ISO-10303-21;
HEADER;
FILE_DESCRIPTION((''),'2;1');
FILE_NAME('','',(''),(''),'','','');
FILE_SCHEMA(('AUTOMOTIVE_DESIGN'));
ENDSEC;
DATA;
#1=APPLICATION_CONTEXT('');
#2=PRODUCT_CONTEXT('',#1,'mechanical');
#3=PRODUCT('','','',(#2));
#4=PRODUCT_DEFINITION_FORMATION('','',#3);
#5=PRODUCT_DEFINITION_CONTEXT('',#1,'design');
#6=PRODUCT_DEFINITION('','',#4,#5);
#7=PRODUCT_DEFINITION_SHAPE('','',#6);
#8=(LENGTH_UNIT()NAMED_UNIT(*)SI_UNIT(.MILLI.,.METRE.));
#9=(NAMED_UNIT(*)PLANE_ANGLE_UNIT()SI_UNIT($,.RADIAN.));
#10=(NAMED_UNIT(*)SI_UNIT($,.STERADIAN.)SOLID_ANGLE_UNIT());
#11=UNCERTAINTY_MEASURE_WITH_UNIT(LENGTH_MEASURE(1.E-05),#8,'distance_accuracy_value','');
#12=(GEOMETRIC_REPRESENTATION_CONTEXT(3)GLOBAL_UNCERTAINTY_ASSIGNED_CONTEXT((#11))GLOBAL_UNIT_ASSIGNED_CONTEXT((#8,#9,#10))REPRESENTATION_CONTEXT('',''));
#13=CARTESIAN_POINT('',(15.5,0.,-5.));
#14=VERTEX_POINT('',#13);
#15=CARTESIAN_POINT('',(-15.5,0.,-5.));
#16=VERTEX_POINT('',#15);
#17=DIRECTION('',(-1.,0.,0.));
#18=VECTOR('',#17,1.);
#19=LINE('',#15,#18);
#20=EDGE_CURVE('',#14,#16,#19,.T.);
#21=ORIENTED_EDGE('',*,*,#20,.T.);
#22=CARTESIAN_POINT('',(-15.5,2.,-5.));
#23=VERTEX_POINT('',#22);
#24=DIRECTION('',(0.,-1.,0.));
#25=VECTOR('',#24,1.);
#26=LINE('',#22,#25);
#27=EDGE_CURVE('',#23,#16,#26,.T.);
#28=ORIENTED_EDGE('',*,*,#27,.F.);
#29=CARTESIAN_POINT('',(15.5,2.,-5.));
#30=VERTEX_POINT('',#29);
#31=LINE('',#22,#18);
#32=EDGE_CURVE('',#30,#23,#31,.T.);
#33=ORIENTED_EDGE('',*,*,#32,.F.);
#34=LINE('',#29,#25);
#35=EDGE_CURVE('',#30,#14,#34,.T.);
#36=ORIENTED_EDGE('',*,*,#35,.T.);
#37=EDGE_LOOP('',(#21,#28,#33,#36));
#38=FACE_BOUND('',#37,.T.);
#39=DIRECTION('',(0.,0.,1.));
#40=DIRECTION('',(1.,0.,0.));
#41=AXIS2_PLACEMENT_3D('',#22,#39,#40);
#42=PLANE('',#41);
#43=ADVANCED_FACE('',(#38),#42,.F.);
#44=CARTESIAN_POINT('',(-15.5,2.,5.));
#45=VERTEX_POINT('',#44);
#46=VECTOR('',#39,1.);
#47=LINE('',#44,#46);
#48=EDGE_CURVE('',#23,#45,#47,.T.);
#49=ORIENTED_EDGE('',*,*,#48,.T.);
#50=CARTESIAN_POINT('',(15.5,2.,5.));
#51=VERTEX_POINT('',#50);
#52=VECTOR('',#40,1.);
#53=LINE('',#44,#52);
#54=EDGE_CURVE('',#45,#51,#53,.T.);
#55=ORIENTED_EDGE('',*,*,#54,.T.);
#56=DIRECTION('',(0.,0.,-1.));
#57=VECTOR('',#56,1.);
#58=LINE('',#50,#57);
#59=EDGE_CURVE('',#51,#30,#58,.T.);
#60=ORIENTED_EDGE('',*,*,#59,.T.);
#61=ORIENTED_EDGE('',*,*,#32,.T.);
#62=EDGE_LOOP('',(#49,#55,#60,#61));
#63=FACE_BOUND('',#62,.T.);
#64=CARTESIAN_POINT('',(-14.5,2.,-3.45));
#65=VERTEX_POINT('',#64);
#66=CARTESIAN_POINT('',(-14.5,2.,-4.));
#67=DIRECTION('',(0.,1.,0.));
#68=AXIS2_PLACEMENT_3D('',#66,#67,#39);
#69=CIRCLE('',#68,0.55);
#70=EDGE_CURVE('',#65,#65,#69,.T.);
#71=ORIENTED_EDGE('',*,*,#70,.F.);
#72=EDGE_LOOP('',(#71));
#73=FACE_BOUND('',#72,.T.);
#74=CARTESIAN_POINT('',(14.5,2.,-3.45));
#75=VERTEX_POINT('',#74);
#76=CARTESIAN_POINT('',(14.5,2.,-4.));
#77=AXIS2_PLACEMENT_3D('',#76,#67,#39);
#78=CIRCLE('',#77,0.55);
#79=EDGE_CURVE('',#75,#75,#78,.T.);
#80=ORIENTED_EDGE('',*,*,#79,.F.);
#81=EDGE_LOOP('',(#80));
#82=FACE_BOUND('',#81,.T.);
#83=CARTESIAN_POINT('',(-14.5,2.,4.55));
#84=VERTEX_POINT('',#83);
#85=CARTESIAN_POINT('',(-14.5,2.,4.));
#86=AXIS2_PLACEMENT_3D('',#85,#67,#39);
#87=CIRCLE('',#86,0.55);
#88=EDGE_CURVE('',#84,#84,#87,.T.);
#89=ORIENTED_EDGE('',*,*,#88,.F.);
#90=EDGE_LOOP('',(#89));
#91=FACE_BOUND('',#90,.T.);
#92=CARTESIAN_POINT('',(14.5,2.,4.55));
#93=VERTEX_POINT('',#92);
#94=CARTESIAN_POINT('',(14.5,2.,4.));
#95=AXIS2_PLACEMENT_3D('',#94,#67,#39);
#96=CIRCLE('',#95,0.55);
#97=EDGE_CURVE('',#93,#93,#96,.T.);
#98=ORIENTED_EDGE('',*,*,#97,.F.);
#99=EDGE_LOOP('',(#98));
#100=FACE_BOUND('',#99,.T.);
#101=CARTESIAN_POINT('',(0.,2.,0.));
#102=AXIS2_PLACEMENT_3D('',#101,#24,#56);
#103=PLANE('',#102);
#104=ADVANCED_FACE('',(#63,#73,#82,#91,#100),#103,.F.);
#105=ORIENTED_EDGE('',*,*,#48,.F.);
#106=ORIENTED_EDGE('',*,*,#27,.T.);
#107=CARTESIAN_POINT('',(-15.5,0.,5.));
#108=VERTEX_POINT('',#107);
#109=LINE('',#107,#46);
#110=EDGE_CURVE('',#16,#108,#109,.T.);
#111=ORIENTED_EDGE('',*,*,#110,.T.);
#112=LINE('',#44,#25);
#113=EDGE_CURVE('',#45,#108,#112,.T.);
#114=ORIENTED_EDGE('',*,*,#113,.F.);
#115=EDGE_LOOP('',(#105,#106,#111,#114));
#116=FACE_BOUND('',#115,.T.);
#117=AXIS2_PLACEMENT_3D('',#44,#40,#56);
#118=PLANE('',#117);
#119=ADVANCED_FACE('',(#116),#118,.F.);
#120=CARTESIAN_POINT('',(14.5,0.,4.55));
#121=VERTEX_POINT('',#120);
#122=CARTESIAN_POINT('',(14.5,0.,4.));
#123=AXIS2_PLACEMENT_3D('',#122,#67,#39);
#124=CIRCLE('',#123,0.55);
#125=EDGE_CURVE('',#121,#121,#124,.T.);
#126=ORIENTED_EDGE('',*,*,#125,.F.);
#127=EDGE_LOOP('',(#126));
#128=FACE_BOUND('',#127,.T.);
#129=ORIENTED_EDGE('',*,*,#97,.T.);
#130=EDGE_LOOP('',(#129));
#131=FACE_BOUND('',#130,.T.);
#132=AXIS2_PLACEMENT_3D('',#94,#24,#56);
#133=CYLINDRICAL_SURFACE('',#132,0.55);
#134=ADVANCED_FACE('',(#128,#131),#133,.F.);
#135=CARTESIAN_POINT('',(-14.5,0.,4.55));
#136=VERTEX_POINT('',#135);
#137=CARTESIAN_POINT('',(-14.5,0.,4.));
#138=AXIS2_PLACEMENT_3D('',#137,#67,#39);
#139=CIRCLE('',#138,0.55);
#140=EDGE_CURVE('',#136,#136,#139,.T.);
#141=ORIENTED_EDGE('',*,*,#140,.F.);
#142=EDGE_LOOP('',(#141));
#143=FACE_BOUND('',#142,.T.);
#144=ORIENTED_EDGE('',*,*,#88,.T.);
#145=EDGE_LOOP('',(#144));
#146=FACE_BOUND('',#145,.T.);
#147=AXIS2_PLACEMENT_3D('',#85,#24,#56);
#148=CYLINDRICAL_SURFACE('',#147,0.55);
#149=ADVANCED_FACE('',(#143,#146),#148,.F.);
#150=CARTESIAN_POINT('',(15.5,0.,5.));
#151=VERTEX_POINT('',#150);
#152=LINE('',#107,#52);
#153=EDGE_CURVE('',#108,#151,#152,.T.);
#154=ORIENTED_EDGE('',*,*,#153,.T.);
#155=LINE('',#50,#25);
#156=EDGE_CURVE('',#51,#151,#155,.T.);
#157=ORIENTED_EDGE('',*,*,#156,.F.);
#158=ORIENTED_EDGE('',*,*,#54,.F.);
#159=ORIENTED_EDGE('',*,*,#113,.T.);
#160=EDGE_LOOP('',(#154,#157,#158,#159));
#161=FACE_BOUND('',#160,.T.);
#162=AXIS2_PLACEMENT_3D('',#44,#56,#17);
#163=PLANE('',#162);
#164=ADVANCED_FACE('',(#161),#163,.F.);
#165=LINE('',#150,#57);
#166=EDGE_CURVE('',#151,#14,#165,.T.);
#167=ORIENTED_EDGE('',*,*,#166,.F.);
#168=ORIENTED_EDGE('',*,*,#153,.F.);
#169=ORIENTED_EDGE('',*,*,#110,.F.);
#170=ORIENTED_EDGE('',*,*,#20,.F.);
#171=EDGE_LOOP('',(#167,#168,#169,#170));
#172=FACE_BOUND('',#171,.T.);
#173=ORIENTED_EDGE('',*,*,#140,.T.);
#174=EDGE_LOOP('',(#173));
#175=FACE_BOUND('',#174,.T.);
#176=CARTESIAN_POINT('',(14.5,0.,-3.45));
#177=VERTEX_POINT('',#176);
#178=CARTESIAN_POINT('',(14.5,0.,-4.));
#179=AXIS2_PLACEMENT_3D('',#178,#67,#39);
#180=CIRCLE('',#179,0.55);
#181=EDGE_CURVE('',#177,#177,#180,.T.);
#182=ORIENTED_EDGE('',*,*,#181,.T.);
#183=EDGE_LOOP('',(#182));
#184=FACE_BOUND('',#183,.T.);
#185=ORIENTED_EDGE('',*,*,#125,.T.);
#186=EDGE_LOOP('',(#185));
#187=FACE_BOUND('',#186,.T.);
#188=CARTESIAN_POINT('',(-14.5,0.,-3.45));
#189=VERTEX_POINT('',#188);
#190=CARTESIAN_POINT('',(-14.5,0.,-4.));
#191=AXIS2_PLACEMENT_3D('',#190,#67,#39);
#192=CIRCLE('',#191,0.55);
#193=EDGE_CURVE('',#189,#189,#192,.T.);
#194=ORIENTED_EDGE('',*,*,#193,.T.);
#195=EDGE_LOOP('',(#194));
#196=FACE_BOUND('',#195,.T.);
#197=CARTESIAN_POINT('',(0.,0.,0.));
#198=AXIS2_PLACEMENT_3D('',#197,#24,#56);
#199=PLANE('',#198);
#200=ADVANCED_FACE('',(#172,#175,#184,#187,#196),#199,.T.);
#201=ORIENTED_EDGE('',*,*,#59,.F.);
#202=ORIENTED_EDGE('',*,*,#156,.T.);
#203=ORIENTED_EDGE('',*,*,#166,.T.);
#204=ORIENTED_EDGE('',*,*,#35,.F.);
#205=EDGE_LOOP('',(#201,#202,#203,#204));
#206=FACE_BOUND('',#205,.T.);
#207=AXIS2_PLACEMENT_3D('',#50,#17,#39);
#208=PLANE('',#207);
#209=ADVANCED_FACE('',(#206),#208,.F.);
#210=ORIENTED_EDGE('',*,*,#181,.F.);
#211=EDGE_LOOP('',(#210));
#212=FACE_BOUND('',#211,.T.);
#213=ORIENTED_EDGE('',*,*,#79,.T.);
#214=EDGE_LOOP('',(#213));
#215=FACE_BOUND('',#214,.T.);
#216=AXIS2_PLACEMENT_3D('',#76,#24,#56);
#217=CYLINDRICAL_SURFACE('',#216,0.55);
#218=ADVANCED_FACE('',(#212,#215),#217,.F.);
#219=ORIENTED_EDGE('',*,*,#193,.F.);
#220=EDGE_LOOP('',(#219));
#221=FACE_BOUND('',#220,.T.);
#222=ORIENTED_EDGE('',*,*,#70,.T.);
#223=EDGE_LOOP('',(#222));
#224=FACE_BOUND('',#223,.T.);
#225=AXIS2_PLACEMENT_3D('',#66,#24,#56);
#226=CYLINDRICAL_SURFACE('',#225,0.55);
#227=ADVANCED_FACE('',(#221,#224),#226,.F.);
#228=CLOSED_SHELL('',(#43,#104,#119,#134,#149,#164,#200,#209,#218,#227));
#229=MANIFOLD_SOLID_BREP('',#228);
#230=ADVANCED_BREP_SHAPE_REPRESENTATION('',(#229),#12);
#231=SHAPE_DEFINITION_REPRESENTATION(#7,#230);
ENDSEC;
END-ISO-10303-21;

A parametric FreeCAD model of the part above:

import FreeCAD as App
import Part
import Sketcher
from FreeCAD import Vector

doc = App.newDocument("Part")
body = doc.addObject("PartDesign::Body", "Body")

# Sketch on XZ plane
sketch1 = doc.addObject("Sketcher::SketchObject", "Sketch")
body.addObject(sketch1)
sketch1.AttachmentSupport = (doc.XZ_Plane, [""])
sketch1.MapMode = "FlatFace"
sketch1.addGeometry([
    Part.LineSegment(Vector(-15.5, -5, 0), Vector(-15.5, 5, 0)),  # 0
    Part.LineSegment(Vector(-15.5, 5, 0), Vector(15.5, 5, 0)),  # 1
    Part.LineSegment(Vector(15.5, 5, 0), Vector(15.5, -5, 0)),  # 2
    Part.LineSegment(Vector(15.5, -5, 0), Vector(-15.5, -5, 0)),  # 3
    Part.Circle(Vector(-14.5, 4, 0), Vector(0, 0, 1), 0.6),  # 4
    Part.Circle(Vector(14.5, 4, 0), Vector(0, 0, 1), 0.6),  # 5
    Part.Circle(Vector(-14.5, -4, 0), Vector(0, 0, 1), 0.6),  # 6
    Part.Circle(Vector(14.5, -4, 0), Vector(0, 0, 1), 0.6),  # 7
], False)
sketch1.addConstraint([
    Sketcher.Constraint("Coincident", 0, 2, 1, 1),
    Sketcher.Constraint("Coincident", 1, 2, 2, 1),
    Sketcher.Constraint("Coincident", 2, 2, 3, 1),
    Sketcher.Constraint("Coincident", 3, 2, 0, 1),
    Sketcher.Constraint("Vertical", 0),
    Sketcher.Constraint("Horizontal", 1),
    Sketcher.Constraint("Vertical", 2),
    Sketcher.Constraint("Horizontal", 3),
    Sketcher.Constraint("Equal", 4, 5),
    Sketcher.Constraint("Equal", 5, 6),
    Sketcher.Constraint("Equal", 6, 7),
    Sketcher.Constraint("Symmetric", 5, 3, 6, 3, -1, 1),
    Sketcher.Constraint("Symmetric", 4, 3, 7, 3, -1, 1),
    Sketcher.Constraint("Symmetric", 0, 2, 2, 2, -1, 1),
    Sketcher.Constraint("Symmetric", 4, 3, 5, 3, -2),
    Sketcher.Constraint("Diameter", 4, 1.1),
    Sketcher.Constraint("DistanceX", 1, 1, 1, 2, 31.0),
    Sketcher.Constraint("DistanceY", 0, 1, 0, 2, 10.0),
    Sketcher.Constraint("DistanceY", -1, 1, 4, 3, 4.0),
    Sketcher.Constraint("DistanceX", 4, 3, 5, 3, 29.0),
])
pad1 = doc.addObject("PartDesign::Pad", "Pad")
body.addObject(pad1)
pad1.Profile = sketch1
pad1.Length = 2
pad1.Reversed = True

doc.recompute()
